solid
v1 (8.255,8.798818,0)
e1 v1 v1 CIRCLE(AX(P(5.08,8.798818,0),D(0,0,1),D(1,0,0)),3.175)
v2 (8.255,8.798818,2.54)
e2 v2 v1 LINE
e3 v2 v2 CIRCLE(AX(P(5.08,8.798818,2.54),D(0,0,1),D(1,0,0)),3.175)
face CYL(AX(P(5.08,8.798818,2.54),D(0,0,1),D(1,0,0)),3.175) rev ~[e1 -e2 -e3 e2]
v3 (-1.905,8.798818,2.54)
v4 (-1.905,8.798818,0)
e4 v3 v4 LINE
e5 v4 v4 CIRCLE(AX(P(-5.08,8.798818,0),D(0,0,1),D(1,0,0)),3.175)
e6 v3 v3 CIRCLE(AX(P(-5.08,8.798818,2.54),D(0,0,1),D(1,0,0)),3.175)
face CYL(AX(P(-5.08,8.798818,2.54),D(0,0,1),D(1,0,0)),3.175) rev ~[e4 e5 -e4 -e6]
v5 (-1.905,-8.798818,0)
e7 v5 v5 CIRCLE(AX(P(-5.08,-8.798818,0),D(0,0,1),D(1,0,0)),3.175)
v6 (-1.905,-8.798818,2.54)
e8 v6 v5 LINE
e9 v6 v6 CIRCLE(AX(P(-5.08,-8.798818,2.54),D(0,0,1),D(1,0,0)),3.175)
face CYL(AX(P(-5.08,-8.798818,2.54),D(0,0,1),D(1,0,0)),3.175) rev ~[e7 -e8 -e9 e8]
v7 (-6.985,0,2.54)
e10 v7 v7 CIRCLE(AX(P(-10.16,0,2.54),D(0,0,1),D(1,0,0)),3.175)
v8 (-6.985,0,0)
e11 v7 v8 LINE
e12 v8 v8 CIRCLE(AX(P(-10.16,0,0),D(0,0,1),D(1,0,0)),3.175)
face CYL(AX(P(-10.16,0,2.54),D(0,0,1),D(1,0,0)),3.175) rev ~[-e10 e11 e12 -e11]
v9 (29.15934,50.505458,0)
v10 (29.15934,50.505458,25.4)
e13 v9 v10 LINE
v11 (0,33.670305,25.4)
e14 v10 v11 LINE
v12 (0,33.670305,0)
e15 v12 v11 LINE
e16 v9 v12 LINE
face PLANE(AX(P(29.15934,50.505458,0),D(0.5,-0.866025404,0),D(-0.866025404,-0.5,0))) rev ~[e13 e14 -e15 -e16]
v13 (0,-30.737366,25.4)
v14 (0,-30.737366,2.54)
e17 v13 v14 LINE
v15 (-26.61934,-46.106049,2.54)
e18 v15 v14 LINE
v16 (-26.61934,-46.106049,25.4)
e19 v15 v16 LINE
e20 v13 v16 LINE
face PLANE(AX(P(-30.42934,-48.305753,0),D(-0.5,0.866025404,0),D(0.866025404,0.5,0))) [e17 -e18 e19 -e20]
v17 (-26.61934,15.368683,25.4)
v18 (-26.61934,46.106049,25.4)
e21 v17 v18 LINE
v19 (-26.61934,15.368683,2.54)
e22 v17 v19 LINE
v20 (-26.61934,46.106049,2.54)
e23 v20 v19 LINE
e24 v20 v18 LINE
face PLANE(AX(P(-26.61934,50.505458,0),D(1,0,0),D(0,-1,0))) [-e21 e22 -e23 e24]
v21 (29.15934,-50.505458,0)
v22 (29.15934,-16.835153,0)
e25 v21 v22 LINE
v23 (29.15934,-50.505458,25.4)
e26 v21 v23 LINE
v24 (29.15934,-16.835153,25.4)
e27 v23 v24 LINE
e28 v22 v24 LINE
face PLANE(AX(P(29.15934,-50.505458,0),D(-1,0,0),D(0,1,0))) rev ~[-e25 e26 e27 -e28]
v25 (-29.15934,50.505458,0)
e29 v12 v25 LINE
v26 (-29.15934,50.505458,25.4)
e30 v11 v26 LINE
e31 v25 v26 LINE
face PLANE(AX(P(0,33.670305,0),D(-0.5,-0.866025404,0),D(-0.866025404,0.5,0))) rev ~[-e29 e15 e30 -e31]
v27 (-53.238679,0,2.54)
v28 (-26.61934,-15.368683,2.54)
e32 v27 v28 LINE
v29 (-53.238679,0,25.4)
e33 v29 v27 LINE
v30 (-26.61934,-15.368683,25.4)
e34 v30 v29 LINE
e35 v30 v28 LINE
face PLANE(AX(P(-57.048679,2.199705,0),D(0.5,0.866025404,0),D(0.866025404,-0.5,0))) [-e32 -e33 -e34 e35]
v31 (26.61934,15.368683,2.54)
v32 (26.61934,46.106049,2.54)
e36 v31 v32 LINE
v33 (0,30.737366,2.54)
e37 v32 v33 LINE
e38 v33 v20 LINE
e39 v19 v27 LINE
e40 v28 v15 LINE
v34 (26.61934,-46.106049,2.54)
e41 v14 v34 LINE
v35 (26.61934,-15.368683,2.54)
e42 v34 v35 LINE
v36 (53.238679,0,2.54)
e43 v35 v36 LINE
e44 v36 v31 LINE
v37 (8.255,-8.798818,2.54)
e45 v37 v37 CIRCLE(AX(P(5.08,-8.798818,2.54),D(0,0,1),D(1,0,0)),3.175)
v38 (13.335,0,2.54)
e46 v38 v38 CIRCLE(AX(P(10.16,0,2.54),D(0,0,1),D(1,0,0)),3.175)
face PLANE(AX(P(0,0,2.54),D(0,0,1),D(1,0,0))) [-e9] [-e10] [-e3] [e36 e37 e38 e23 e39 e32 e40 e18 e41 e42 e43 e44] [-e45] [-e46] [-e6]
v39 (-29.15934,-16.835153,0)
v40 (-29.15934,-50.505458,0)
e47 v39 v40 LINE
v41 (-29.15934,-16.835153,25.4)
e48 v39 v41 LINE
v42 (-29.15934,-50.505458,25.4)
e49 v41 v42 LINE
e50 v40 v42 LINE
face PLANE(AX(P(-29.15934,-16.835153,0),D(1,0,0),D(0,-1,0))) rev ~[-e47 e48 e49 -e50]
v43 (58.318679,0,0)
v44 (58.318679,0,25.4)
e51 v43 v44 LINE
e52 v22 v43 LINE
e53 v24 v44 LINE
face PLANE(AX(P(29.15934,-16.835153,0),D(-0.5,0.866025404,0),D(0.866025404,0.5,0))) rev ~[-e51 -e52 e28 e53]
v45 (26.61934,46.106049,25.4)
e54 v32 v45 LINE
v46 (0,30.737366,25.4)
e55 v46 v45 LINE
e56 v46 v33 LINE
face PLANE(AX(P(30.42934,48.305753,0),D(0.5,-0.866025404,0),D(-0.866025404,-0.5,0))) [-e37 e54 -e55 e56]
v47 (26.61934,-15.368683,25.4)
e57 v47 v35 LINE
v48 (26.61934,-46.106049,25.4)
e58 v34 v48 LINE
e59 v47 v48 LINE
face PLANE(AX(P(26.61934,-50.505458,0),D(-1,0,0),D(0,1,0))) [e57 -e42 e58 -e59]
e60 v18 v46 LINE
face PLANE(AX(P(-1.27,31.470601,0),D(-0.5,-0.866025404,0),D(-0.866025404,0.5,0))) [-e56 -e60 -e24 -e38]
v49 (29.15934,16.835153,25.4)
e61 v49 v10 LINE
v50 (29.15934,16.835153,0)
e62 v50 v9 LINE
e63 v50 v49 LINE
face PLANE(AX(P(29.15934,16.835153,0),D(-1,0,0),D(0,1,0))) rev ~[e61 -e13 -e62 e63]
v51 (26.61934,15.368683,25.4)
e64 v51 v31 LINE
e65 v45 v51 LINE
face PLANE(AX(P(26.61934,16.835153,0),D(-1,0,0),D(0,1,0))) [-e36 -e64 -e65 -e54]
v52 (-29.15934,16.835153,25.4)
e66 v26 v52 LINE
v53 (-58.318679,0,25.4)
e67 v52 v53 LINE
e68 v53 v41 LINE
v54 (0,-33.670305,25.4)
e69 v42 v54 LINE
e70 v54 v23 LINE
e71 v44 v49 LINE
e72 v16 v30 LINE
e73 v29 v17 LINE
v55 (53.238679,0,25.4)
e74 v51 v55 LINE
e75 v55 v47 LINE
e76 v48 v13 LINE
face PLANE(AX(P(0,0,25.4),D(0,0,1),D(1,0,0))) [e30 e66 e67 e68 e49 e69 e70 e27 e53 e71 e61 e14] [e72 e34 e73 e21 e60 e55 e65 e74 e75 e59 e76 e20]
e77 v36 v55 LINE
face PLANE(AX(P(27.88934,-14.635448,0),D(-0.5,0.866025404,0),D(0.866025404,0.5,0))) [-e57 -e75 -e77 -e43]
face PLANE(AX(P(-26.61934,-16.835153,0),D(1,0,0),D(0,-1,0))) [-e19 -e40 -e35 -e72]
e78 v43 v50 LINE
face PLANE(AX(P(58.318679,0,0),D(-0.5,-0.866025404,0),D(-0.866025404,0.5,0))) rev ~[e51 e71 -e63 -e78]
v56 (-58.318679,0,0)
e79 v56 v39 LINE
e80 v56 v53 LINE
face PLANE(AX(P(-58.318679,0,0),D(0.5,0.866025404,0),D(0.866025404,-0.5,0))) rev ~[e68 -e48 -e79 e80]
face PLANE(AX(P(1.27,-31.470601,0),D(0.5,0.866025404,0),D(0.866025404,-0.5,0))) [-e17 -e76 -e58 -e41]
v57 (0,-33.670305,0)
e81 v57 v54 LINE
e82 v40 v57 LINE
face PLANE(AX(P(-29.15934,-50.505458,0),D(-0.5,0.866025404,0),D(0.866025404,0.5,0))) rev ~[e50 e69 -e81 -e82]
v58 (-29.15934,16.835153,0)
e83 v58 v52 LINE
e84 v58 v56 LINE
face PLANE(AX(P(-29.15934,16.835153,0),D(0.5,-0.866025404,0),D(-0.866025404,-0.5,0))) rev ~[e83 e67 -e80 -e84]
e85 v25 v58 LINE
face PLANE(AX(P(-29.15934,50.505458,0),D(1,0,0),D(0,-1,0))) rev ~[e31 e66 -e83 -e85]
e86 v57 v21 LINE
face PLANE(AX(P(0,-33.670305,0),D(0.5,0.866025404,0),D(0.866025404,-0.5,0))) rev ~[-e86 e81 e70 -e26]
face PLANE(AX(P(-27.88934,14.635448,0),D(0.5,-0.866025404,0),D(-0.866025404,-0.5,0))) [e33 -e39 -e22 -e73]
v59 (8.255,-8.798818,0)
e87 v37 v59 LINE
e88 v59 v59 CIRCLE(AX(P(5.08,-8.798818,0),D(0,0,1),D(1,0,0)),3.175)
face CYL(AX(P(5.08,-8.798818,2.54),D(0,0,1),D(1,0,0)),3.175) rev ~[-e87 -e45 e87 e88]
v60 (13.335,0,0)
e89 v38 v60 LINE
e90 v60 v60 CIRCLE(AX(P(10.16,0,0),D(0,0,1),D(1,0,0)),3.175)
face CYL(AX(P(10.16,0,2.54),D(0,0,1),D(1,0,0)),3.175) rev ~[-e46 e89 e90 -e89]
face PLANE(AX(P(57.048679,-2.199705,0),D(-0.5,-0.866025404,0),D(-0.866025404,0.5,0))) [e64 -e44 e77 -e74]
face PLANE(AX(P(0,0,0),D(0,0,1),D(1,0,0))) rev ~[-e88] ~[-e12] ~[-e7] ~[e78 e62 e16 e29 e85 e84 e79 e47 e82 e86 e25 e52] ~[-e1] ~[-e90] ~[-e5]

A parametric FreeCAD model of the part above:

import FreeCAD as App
import Part
import Sketcher
Q = App.Units.Quantity


def faces_at(feature, points):
    """Names of the faces that lie closest to the given points."""
    faces = feature.Shape.Faces
    near = lambda p: min(range(len(faces)), key=lambda i: faces[i].distToShape(Part.Vertex(*p))[0])
    return sorted({f"Face{near(p) + 1}" for p in points})


def add_polygon(sketch, points):
    """Adds a closed chain of lines whose ends are joined by coincident constraints."""
    first, n = sketch.GeometryCount, len(points)
    for a, b in zip(points, points[1:] + points[:1]):
        sketch.addGeometry(Part.LineSegment(App.Vector(*a, 0), App.Vector(*b, 0)), False)
    for i in range(n):
        sketch.addConstraint(Sketcher.Constraint("Coincident", first + i, 2, first + (i + 1) % n, 1))

doc = App.newDocument("Part")
body = doc.addObject("PartDesign::Body", "Body")

# Sketch on XY plane
sketch1 = body.newObject("Sketcher::SketchObject", "Sketch")
sketch1.AttachmentSupport = (doc.getObject("XY_Plane"), [""])
sketch1.MapMode = "FlatFace"
add_polygon(sketch1, [(-58, 0), (-29, -17), (-29, -51), (0, -34), (29, -51), (29, -17), (58, 0), (29, 17), (29, 51), (0, 34), (-29, 51), (-29, 17)])  # lines 0-11
sketch1.addConstraint([
    Sketcher.Constraint("Vertical", 1),
    Sketcher.Constraint("Vertical", 4),
    Sketcher.Constraint("Vertical", 7),
    Sketcher.Constraint("Vertical", 10),
    Sketcher.Constraint("Symmetric", 0, 2, 6, 2, -1, 1),
    Sketcher.Constraint("Symmetric", 2, 2, 8, 2, -1, 1),
    Sketcher.Constraint("Symmetric", 3, 2, 9, 2, -1, 1),
    Sketcher.Constraint("Symmetric", 5, 2, 11, 2, -1, 1),
    Sketcher.Constraint("Symmetric", 1, 2, 3, 2, -2),
    Sketcher.Constraint("PointOnObject", 2, 2, -2),
    Sketcher.Constraint("PointOnObject", 5, 2, -1),
    Sketcher.Constraint("Parallel", 0, 3),
    Sketcher.Constraint("Parallel", 2, 5),
    Sketcher.Constraint("Parallel", 5, 8),
    Sketcher.Constraint("Parallel", 8, 11),
    Sketcher.Constraint("Equal", 0, 2),
    Sketcher.Constraint("Angle", 0, Q("-30 deg")),
    Sketcher.Constraint("DistanceY", 1, 2, 1, 1, 33.670305),
    Sketcher.Constraint("DistanceX", 0, 2, -1, 1, 29.15934),
])
pad1 = body.newObject("PartDesign::Pad", "Pad")
pad1.Profile = sketch1
pad1.Length = Q("1 in")
doc.recompute()

thickness = body.newObject("PartDesign::Thickness", "Thickness")
thickness.Base = (pad1, faces_at(pad1, [(0, 0, 25.4)]))
thickness.Value = Q("0.1 in")
thickness.Reversed = True
thickness.Join = "Intersection"

# Sketch on XY plane
sketch2 = body.newObject("Sketcher::SketchObject", "Sketch001")
sketch2.AttachmentSupport = (doc.getObject("XY_Plane"), [""])
sketch2.MapMode = "FlatFace"
sketch2.AttachmentOffset = App.Placement(App.Vector(0, 0, 0.1 * 25.4), App.Rotation())
sketch2.addGeometry([
    Part.Circle(App.Vector(5.1, 8.8, 0), App.Vector(0, 0, 1), 3.2),  # 0
    Part.Circle(App.Vector(10.2, 0, 0), App.Vector(0, 0, 1), 3.2),  # 1
    Part.Circle(App.Vector(5.1, -8.8, 0), App.Vector(0, 0, 1), 3.2),  # 2
    Part.Circle(App.Vector(-5.1, -8.8, 0), App.Vector(0, 0, 1), 3.2),  # 3
    Part.Circle(App.Vector(-10.2, 0, 0), App.Vector(0, 0, 1), 3.2),  # 4
    Part.Circle(App.Vector(-5.1, 8.8, 0), App.Vector(0, 0, 1), 3.2),  # 5
], False)
sketch2.addConstraint([
    Sketcher.Constraint("Equal", 0, 1),
    Sketcher.Constraint("Equal", 1, 2),
    Sketcher.Constraint("Equal", 2, 3),
    Sketcher.Constraint("Equal", 3, 4),
    Sketcher.Constraint("Equal", 4, 5),
    Sketcher.Constraint("Symmetric", 0, 3, 3, 3, -1, 1),
    Sketcher.Constraint("Symmetric", 1, 3, 4, 3, -1, 1),
    Sketcher.Constraint("Symmetric", 2, 3, 5, 3, -1, 1),
    Sketcher.Constraint("Symmetric", 2, 3, 3, 3, -2),
    Sketcher.Constraint("PointOnObject", 1, 3, -1),
    Sketcher.Constraint("Diameter", 0, Q("0.25 in")),
    Sketcher.Constraint("DistanceX", -1, 1, 0, 3, Q("0.2 in")),
    Sketcher.Constraint("DistanceX", -1, 1, 1, 3, Q("0.4 in")),
    Sketcher.Constraint("DistanceY", -1, 1, 0, 3, 8.798818),
])
pocket1 = body.newObject("PartDesign::Pocket", "Pocket")
pocket1.Profile = sketch2
pocket1.Length = Q("1 in")

doc.recompute()
